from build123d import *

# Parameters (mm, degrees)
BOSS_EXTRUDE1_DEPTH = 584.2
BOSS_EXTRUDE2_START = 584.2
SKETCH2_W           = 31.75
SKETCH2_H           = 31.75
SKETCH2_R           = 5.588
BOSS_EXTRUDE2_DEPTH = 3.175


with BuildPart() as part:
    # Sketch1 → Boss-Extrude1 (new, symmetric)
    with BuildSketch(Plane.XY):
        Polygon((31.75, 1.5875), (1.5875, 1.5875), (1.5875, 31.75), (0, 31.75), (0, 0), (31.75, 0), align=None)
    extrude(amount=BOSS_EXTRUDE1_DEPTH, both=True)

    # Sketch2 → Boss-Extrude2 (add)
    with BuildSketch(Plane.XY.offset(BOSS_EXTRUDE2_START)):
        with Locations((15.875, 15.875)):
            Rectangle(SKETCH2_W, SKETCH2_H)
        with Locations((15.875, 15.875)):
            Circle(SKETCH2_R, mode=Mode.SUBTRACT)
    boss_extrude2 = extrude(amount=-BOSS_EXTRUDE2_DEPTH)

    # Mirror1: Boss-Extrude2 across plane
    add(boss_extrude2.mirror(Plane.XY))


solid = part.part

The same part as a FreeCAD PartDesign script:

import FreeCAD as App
import Part
import Sketcher
from FreeCAD import Vector
Q = App.Units.Quantity


def add_polygon(sketch, points):
    """Adds a closed chain of lines whose ends are joined by coincident constraints."""
    first, n = sketch.GeometryCount, len(points)
    for a, b in zip(points, points[1:] + points[:1]):
        sketch.addGeometry(Part.LineSegment(App.Vector(*a, 0), App.Vector(*b, 0)), False)
    for i in range(n):
        sketch.addConstraint(Sketcher.Constraint("Coincident", first + i, 2, first + (i + 1) % n, 1))

doc = App.newDocument("Part")
params = doc.addObject("Spreadsheet::Sheet", "Params")
for row, (alias, value) in enumerate([
    ("sketch1_width", "1.25 in"),
    ("sketch1_width2", "1.1875 in"),
    ("pad1_length", "46 in"),
    ("sketch2_diameter", "0.44 in"),
    ("sketch2_width", "1.25 in"),
    ("pad2_length", "0.125 in"),
], start=1):
    params.set(f"A{row}", alias)
    params.set(f"B{row}", "=" + value)
    params.setAlias(f"B{row}", alias)

body = doc.addObject("PartDesign::Body", "Body")

sketch1 = body.newObject("Sketcher::SketchObject", "Sketch")
sketch1.AttachmentSupport = (doc.getObject("XY_Plane"), [""])
sketch1.MapMode = "FlatFace"
add_polygon(sketch1, [(31.75, 1.5875), (1.5875, 1.5875), (1.5875, 31.75), (0, 31.75), (0, 0), (31.75, 0)])
sketch1.addConstraint(Sketcher.Constraint("Horizontal", 0))
sketch1.addConstraint(Sketcher.Constraint("Vertical", 1))
sketch1.addConstraint(Sketcher.Constraint("Horizontal", 2))
sketch1.addConstraint(Sketcher.Constraint("Vertical", 3))
sketch1.addConstraint(Sketcher.Constraint("Horizontal", 4))
sketch1.addConstraint(Sketcher.Constraint("Vertical", 5))
sketch1.addConstraint(Sketcher.Constraint("Coincident", 3, 2, -1, 1))
sketch1.addConstraint(Sketcher.Constraint("Equal", 0, 1))
sketch1.addConstraint(Sketcher.Constraint("Equal", 4, 3))
sketch1.addConstraint(Sketcher.Constraint("DistanceX", 4, 1, 4, 2, Q("1.25 in")))
sketch1.addConstraint(Sketcher.Constraint("DistanceX", 0, 2, 0, 1, Q("1.1875 in")))
sketch1.setExpression("Constraints[15]", "Params.sketch1_width")
sketch1.setExpression("Constraints[16]", "Params.sketch1_width2")
pad1 = body.newObject("PartDesign::Pad", "Pad")
pad1.Profile = sketch1
pad1.setExpression("Length", "Params.pad1_length")
pad1.Midplane = True

sketch2 = body.newObject("Sketcher::SketchObject", "Sketch001")
sketch2.AttachmentSupport = (doc.getObject("XY_Plane"), [""])
sketch2.MapMode = "FlatFace"
sketch2.AttachmentOffset = App.Placement(Vector(0, 0, 23 * 25.4), App.Rotation())
add_polygon(sketch2, [(0, 31.75), (0, 0), (31.75, 0), (31.75, 31.75)])
sketch2.addGeometry(Part.Circle(Vector(15.875, 15.875, 0), Vector(0, 0, 1), 5.588), False)
sketch2.addConstraint(Sketcher.Constraint("Vertical", 0))
sketch2.addConstraint(Sketcher.Constraint("Horizontal", 1))
sketch2.addConstraint(Sketcher.Constraint("Vertical", 2))
sketch2.addConstraint(Sketcher.Constraint("Horizontal", 3))
sketch2.addConstraint(Sketcher.Constraint("Coincident", 0, 2, -1, 1))
sketch2.addConstraint(Sketcher.Constraint("Equal", 3, 0))
sketch2.addConstraint(Sketcher.Constraint("Diameter", 4, Q("0.44 in")))
sketch2.addConstraint(Sketcher.Constraint("DistanceX", 1, 1, 1, 2, Q("1.25 in")))
sketch2.addConstraint(Sketcher.Constraint("DistanceX", -1, 1, 4, 3, Q("0.625 in")))
sketch2.addConstraint(Sketcher.Constraint("DistanceY", -1, 1, 4, 3, Q("0.625 in")))
sketch2.setExpression("Constraints[10]", "Params.sketch2_diameter")
sketch2.setExpression("Constraints[11]", "Params.sketch2_width")
pad2 = body.newObject("PartDesign::Pad", "Pad001")
pad2.Profile = sketch2
pad2.setExpression("Length", "Params.pad2_length")
pad2.Reversed = True
doc.recompute()

mirrored = body.newObject("PartDesign::Mirrored", "Mirrored")
mirrored.Originals = [pad2]
mirrored.MirrorPlane = (doc.getObject("XY_Plane"), [""])
body.Tip = mirrored

doc.recompute()
